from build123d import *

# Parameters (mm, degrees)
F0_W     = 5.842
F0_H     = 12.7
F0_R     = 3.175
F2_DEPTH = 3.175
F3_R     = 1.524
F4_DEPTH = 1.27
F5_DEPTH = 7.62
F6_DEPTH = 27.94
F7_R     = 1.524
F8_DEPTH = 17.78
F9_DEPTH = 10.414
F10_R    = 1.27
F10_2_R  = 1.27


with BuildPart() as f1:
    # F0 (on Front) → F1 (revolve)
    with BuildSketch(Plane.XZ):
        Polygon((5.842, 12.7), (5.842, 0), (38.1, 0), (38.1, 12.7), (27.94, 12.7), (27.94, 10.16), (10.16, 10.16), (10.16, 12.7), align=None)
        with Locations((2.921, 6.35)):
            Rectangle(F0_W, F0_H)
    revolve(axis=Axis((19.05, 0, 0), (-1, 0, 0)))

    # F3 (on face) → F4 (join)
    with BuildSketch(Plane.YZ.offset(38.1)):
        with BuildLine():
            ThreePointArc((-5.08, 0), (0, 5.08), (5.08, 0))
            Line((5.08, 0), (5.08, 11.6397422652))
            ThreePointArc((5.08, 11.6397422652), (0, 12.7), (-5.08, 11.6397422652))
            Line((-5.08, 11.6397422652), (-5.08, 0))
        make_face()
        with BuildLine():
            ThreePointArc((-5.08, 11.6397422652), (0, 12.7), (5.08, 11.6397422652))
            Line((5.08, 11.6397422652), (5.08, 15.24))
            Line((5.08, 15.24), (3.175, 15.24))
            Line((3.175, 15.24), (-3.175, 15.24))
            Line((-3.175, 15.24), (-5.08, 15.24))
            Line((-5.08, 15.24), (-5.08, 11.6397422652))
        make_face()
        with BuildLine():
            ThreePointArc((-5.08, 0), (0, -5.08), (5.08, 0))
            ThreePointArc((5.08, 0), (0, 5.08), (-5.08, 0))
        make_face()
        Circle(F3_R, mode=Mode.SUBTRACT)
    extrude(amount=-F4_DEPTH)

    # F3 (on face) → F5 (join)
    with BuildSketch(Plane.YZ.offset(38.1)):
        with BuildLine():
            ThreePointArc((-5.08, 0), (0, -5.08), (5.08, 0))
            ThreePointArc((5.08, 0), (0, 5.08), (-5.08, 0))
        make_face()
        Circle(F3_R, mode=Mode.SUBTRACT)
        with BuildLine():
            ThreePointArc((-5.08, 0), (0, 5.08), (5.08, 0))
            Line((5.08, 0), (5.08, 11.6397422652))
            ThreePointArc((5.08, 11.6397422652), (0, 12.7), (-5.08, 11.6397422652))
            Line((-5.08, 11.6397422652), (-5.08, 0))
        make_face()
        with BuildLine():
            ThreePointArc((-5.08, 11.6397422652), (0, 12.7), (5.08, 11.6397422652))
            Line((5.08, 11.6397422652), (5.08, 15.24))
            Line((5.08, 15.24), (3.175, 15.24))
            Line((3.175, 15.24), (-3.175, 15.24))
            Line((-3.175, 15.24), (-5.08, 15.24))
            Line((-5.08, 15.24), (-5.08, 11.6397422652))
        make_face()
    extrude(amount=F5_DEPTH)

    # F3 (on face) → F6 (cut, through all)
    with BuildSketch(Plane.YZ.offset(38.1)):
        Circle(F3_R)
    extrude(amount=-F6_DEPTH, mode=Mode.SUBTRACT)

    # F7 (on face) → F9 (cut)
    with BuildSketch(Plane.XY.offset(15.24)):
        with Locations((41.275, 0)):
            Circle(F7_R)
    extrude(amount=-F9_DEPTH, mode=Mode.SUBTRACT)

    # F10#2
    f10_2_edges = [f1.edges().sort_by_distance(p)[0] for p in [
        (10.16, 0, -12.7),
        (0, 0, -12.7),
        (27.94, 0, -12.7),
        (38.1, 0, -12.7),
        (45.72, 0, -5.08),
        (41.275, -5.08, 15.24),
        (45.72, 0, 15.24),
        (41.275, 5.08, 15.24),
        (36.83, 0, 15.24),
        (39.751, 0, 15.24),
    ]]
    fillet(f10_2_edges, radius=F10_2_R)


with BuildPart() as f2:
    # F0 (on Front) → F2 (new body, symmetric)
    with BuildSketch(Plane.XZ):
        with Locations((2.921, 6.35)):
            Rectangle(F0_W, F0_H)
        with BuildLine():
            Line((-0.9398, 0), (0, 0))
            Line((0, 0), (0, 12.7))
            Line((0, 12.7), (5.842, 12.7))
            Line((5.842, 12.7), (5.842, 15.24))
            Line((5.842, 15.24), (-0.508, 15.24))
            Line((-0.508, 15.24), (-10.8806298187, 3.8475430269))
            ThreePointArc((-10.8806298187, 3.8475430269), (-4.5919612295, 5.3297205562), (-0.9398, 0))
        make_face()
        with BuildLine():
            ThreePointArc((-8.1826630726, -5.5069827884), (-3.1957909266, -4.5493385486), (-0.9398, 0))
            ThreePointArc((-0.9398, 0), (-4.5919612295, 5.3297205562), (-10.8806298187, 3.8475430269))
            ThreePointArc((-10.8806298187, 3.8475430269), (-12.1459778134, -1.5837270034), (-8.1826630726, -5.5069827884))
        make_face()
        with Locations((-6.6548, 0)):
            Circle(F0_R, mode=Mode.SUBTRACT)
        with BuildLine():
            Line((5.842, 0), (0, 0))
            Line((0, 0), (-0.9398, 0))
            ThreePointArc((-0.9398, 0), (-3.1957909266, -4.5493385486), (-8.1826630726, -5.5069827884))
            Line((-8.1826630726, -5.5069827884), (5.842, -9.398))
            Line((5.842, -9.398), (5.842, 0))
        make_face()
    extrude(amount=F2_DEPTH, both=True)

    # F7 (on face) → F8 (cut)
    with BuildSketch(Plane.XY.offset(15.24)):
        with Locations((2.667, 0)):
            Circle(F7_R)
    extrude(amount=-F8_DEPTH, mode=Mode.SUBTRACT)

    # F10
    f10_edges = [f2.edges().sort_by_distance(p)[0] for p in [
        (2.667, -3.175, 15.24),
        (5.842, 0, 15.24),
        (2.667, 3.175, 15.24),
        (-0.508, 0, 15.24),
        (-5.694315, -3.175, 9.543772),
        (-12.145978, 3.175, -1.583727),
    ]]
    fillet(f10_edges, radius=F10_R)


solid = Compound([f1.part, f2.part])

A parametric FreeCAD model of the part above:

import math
import FreeCAD as App
import Part
import Sketcher
from FreeCAD import Vector
Q = App.Units.Quantity


def edges_at(feature, points):
    """Names of the edges that pass closest to the given points."""
    edges = feature.Shape.Edges
    near = lambda p: min(range(len(edges)), key=lambda i: edges[i].distToShape(Part.Vertex(*p))[0])
    return sorted({f"Edge{near(p) + 1}" for p in points})

doc = App.newDocument("Part")
body = doc.addObject("PartDesign::Body", "Body")

sketch1 = body.newObject("Sketcher::SketchObject", "Sketch")
sketch1.AttachmentSupport = (doc.getObject("XZ_Plane"), [""])
sketch1.MapMode = "FlatFace"
sketch1.addGeometry(Part.LineSegment(Vector(38.1, 0, 0), Vector(38.1, 12.7, 0)), False)
sketch1.addGeometry(Part.LineSegment(Vector(38.1, 12.7, 0), Vector(27.94, 12.7, 0)), False)
sketch1.addGeometry(Part.LineSegment(Vector(27.94, 12.7, 0), Vector(27.94, 10.16, 0)), False)
sketch1.addGeometry(Part.LineSegment(Vector(27.94, 10.16, 0), Vector(10.16, 10.16, 0)), False)
sketch1.addGeometry(Part.LineSegment(Vector(10.16, 10.16, 0), Vector(10.16, 12.7, 0)), False)
sketch1.addGeometry(Part.LineSegment(Vector(10.16, 12.7, 0), Vector(0, 12.7, 0)), False)
sketch1.addGeometry(Part.LineSegment(Vector(0, 12.7, 0), Vector(0, 0, 0)), False)
sketch1.addGeometry(Part.LineSegment(Vector(0, 0, 0), Vector(38.1, 0, 0)), False)
sketch1.addConstraint(Sketcher.Constraint("Coincident", 0, 2, 1, 1))
sketch1.addConstraint(Sketcher.Constraint("Coincident", 1, 2, 2, 1))
sketch1.addConstraint(Sketcher.Constraint("Coincident", 2, 2, 3, 1))
sketch1.addConstraint(Sketcher.Constraint("Coincident", 3, 2, 4, 1))
sketch1.addConstraint(Sketcher.Constraint("Coincident", 4, 2, 5, 1))
sketch1.addConstraint(Sketcher.Constraint("Coincident", 5, 2, 6, 1))
sketch1.addConstraint(Sketcher.Constraint("Coincident", 6, 2, 7, 1))
sketch1.addConstraint(Sketcher.Constraint("Coincident", 7, 2, 0, 1))
sketch1.addConstraint(Sketcher.Constraint("Vertical", 0))
sketch1.addConstraint(Sketcher.Constraint("Horizontal", 1))
sketch1.addConstraint(Sketcher.Constraint("Vertical", 2))
sketch1.addConstraint(Sketcher.Constraint("Horizontal", 3))
sketch1.addConstraint(Sketcher.Constraint("Vertical", 4))
sketch1.addConstraint(Sketcher.Constraint("Horizontal", 5))
sketch1.addConstraint(Sketcher.Constraint("Vertical", 6))
sketch1.addConstraint(Sketcher.Constraint("Horizontal", 7))
sketch1.addConstraint(Sketcher.Constraint("Coincident", 6, 2, -1, 1))
sketch1.addConstraint(Sketcher.Constraint("Horizontal", 1, 2, 4, 2))
sketch1.addConstraint(Sketcher.Constraint("Equal", 1, 5))
sketch1.addConstraint(Sketcher.Constraint("DistanceX", 1, 2, 1, 1, Q("0.4 in")))
sketch1.addConstraint(Sketcher.Constraint("DistanceX", 3, 2, 3, 1, Q("0.7 in")))
sketch1.addConstraint(Sketcher.Constraint("DistanceY", 0, 1, 0, 2, Q("0.5 in")))
sketch1.addConstraint(Sketcher.Constraint("DistanceY", 2, 2, 2, 1, Q("0.1 in")))
revolution = body.newObject("PartDesign::Revolution", "Revolution")
revolution.Profile = sketch1
revolution.ReferenceAxis = (sketch1, ["H_Axis"])
revolution.Angle = 360

sketch2 = body.newObject("Sketcher::SketchObject", "Sketch001")
sketch2.AttachmentSupport = (doc.getObject("YZ_Plane"), [""])
sketch2.MapMode = "FlatFace"
sketch2.AttachmentOffset = App.Placement(Vector(0, 0, 1.5 * 25.4), App.Rotation())
sketch2.addGeometry(Part.LineSegment(Vector(5.08, 0, 0), Vector(5.08, 15.24, 0)), False)
sketch2.addGeometry(Part.LineSegment(Vector(5.08, 15.24, 0), Vector(-5.08, 15.24, 0)), False)
sketch2.addGeometry(Part.LineSegment(Vector(-5.08, 15.24, 0), Vector(-5.08, 0, 0)), False)
sketch2.addGeometry(Part.ArcOfCircle(Part.Circle(Vector(0, 0, 0), Vector(0, 0, 1), 5.08), math.radians(180), math.radians(360)), False)
sketch2.addGeometry(Part.Circle(Vector(0, 0, 0), Vector(0, 0, 1), 1.524), False)
sketch2.addConstraint(Sketcher.Constraint("Coincident", 0, 2, 1, 1))
sketch2.addConstraint(Sketcher.Constraint("Coincident", 1, 2, 2, 1))
sketch2.addConstraint(Sketcher.Constraint("Tangent", 2, 2, 3, 1))
sketch2.addConstraint(Sketcher.Constraint("Tangent", 3, 2, 0, 1))
sketch2.addConstraint(Sketcher.Constraint("Vertical", 0))
sketch2.addConstraint(Sketcher.Constraint("Horizontal", 1))
sketch2.addConstraint(Sketcher.Constraint("Vertical", 2))
sketch2.addConstraint(Sketcher.Constraint("Coincident", 3, 3, -1, 1))
sketch2.addConstraint(Sketcher.Constraint("Coincident", 4, 3, -1, 1))
sketch2.addConstraint(Sketcher.Constraint("Radius", 3, Q("0.2 in")))
sketch2.addConstraint(Sketcher.Constraint("Diameter", 4, Q("0.12 in")))
sketch2.addConstraint(Sketcher.Constraint("DistanceY", 0, 1, 0, 2, Q("0.6 in")))
pad1 = body.newObject("PartDesign::Pad", "Pad")
pad1.Profile = sketch2
pad1.Length = Q("0.05 in")
pad1.Reversed = True

sketch3 = body.newObject("Sketcher::SketchObject", "Sketch002")
sketch3.AttachmentSupport = (doc.getObject("YZ_Plane"), [""])
sketch3.MapMode = "FlatFace"
sketch3.AttachmentOffset = App.Placement(Vector(0, 0, 1.5 * 25.4), App.Rotation())
sketch3.addGeometry(Part.ArcOfCircle(Part.Circle(Vector(0, 0, 0), Vector(0, 0, 1), 5.08), math.radians(180), math.radians(360)), False)
sketch3.addGeometry(Part.LineSegment(Vector(5.08, 0, 0), Vector(5.08, 15.24, 0)), False)
sketch3.addGeometry(Part.LineSegment(Vector(5.08, 15.24, 0), Vector(-5.08, 15.24, 0)), False)
sketch3.addGeometry(Part.LineSegment(Vector(-5.08, 15.24, 0), Vector(-5.08, 0, 0)), False)
sketch3.addGeometry(Part.Circle(Vector(0, 0, 0), Vector(0, 0, 1), 1.524), False)
sketch3.addConstraint(Sketcher.Constraint("Tangent", 0, 2, 1, 1))
sketch3.addConstraint(Sketcher.Constraint("Coincident", 1, 2, 2, 1))
sketch3.addConstraint(Sketcher.Constraint("Coincident", 2, 2, 3, 1))
sketch3.addConstraint(Sketcher.Constraint("Tangent", 3, 2, 0, 1))
sketch3.addConstraint(Sketcher.Constraint("Vertical", 1))
sketch3.addConstraint(Sketcher.Constraint("Horizontal", 2))
sketch3.addConstraint(Sketcher.Constraint("Vertical", 3))
sketch3.addConstraint(Sketcher.Constraint("Coincident", 0, 3, -1, 1))
sketch3.addConstraint(Sketcher.Constraint("Coincident", 4, 3, -1, 1))
sketch3.addConstraint(Sketcher.Constraint("Radius", 0, Q("0.2 in")))
sketch3.addConstraint(Sketcher.Constraint("Diameter", 4, Q("0.12 in")))
sketch3.addConstraint(Sketcher.Constraint("DistanceY", 1, 1, 1, 2, Q("0.6 in")))
pad2 = body.newObject("PartDesign::Pad", "Pad001")
pad2.Profile = sketch3
pad2.Length = Q("0.3 in")

sketch4 = body.newObject("Sketcher::SketchObject", "Sketch003")
sketch4.AttachmentSupport = (doc.getObject("YZ_Plane"), [""])
sketch4.MapMode = "FlatFace"
sketch4.AttachmentOffset = App.Placement(Vector(0, 0, 1.5 * 25.4), App.Rotation())
sketch4.addGeometry(Part.Circle(Vector(0, 0, 0), Vector(0, 0, 1), 1.524), False)
sketch4.addConstraint(Sketcher.Constraint("Coincident", 0, 3, -1, 1))
sketch4.addConstraint(Sketcher.Constraint("Diameter", 0, Q("0.12 in")))
pocket1 = body.newObject("PartDesign::Pocket", "Pocket")
pocket1.Profile = sketch4
pocket1.Length = Q("1.1 in")

sketch5 = body.newObject("Sketcher::SketchObject", "Sketch004")
sketch5.AttachmentSupport = (doc.getObject("XY_Plane"), [""])
sketch5.MapMode = "FlatFace"
sketch5.AttachmentOffset = App.Placement(Vector(0, 0, 0.6 * 25.4), App.Rotation())
sketch5.addGeometry(Part.Circle(Vector(41.275, 0, 0), Vector(0, 0, 1), 1.524), False)
sketch5.addConstraint(Sketcher.Constraint("PointOnObject", 0, 3, -1))
sketch5.addConstraint(Sketcher.Constraint("Diameter", 0, Q("0.12 in")))
sketch5.addConstraint(Sketcher.Constraint("DistanceX", -1, 1, 0, 3, Q("1.625 in")))
pocket2 = body.newObject("PartDesign::Pocket", "Pocket001")
pocket2.Profile = sketch5
pocket2.Length = Q("0.41 in")
doc.recompute()

fillet = body.newObject("PartDesign::Fillet", "Fillet")
fillet.Base = (pocket2, edges_at(pocket2, [
    (10.16, 0, -12.7),
    (0, 0, -12.7),
    (27.94, 0, -12.7),
    (38.1, 0, -12.7),
    (45.72, 0, -5.08),
    (41.275, -5.08, 15.24),
    (45.72, 0, 15.24),
    (41.275, 5.08, 15.24),
    (36.83, 0, 15.24),
    (39.751, 0, 15.24),
]))
fillet.Radius = Q("0.05 in")
body2 = doc.addObject("PartDesign::Body", "Body001")

sketch6 = body2.newObject("Sketcher::SketchObject", "Sketch005")
sketch6.AttachmentSupport = (doc.getObject("XZ_Plane001"), [""])
sketch6.MapMode = "FlatFace"
sketch6.addGeometry(Part.LineSegment(Vector(5.842, 15.24, 0), Vector(-0.508, 15.24, 0)), False)
sketch6.addGeometry(Part.LineSegment(Vector(-0.508, 15.24, 0), Vector(-10.88063, 3.847543, 0)), False)
sketch6.addGeometry(Part.ArcOfCircle(Part.Circle(Vector(-6.6548, 0, 0), Vector(0, 0, 1), 5.715), math.radians(137.682695), math.radians(254.493802)), False)
sketch6.addGeometry(Part.LineSegment(Vector(-8.182663, -5.506983, 0), Vector(5.842, -9.398, 0)), False)
sketch6.addGeometry(Part.LineSegment(Vector(5.842, -9.398, 0), Vector(5.842, 15.24, 0)), False)
sketch6.addGeometry(Part.Circle(Vector(-6.6548, 0, 0), Vector(0, 0, 1), 3.175), False)
sketch6.addConstraint(Sketcher.Constraint("Coincident", 0, 2, 1, 1))
sketch6.addConstraint(Sketcher.Constraint("Tangent", 1, 2, 2, 1))
sketch6.addConstraint(Sketcher.Constraint("Tangent", 2, 2, 3, 1))
sketch6.addConstraint(Sketcher.Constraint("Coincident", 3, 2, 4, 1))
sketch6.addConstraint(Sketcher.Constraint("Coincident", 4, 2, 0, 1))
sketch6.addConstraint(Sketcher.Constraint("Horizontal", 0))
sketch6.addConstraint(Sketcher.Constraint("Vertical", 4))
sketch6.addConstraint(Sketcher.Constraint("Coincident", 5, 3, 2, 3))
sketch6.addConstraint(Sketcher.Constraint("PointOnObject", 2, 3, -1))
sketch6.addConstraint(Sketcher.Constraint("Diameter", 5, Q("0.25 in")))
sketch6.addConstraint(Sketcher.Constraint("Radius", 2, Q("0.225 in")))
sketch6.addConstraint(Sketcher.Constraint("DistanceX", 0, 2, 0, 1, Q("0.25 in")))
sketch6.addConstraint(Sketcher.Constraint("DistanceY", 4, 1, 4, 2, Q("0.97 in")))
sketch6.addConstraint(Sketcher.Constraint("DistanceY", -1, 1, 0, 2, Q("0.6 in")))
sketch6.addConstraint(Sketcher.Constraint("DistanceX", 0, 2, -1, 1, Q("0.02 in")))
sketch6.addConstraint(Sketcher.Constraint("DistanceX", 2, 3, -1, 1, Q("0.262 in")))
pad3 = body2.newObject("PartDesign::Pad", "Pad002")
pad3.Profile = sketch6
pad3.Length = Q("0.25 in")
pad3.Midplane = True

sketch7 = body2.newObject("Sketcher::SketchObject", "Sketch006")
sketch7.AttachmentSupport = (doc.getObject("XY_Plane001"), [""])
sketch7.MapMode = "FlatFace"
sketch7.AttachmentOffset = App.Placement(Vector(0, 0, 0.6 * 25.4), App.Rotation())
sketch7.addGeometry(Part.Circle(Vector(2.667, 0, 0), Vector(0, 0, 1), 1.524), False)
sketch7.addConstraint(Sketcher.Constraint("PointOnObject", 0, 3, -1))
sketch7.addConstraint(Sketcher.Constraint("Diameter", 0, Q("0.12 in")))
sketch7.addConstraint(Sketcher.Constraint("DistanceX", -1, 1, 0, 3, Q("0.105 in")))
pocket3 = body2.newObject("PartDesign::Pocket", "Pocket002")
pocket3.Profile = sketch7
pocket3.Length = Q("0.7 in")
doc.recompute()

fillet2 = body2.newObject("PartDesign::Fillet", "Fillet001")
fillet2.Base = (pocket3, edges_at(pocket3, [
    (2.667, -3.175, 15.24),
    (5.842, 0, 15.24),
    (2.667, 3.175, 15.24),
    (-0.508, 0, 15.24),
    (-5.694, -3.175, 9.544),
    (-12.146, 3.175, -1.584),
]))
fillet2.Radius = Q("0.05 in")

doc.recompute()
